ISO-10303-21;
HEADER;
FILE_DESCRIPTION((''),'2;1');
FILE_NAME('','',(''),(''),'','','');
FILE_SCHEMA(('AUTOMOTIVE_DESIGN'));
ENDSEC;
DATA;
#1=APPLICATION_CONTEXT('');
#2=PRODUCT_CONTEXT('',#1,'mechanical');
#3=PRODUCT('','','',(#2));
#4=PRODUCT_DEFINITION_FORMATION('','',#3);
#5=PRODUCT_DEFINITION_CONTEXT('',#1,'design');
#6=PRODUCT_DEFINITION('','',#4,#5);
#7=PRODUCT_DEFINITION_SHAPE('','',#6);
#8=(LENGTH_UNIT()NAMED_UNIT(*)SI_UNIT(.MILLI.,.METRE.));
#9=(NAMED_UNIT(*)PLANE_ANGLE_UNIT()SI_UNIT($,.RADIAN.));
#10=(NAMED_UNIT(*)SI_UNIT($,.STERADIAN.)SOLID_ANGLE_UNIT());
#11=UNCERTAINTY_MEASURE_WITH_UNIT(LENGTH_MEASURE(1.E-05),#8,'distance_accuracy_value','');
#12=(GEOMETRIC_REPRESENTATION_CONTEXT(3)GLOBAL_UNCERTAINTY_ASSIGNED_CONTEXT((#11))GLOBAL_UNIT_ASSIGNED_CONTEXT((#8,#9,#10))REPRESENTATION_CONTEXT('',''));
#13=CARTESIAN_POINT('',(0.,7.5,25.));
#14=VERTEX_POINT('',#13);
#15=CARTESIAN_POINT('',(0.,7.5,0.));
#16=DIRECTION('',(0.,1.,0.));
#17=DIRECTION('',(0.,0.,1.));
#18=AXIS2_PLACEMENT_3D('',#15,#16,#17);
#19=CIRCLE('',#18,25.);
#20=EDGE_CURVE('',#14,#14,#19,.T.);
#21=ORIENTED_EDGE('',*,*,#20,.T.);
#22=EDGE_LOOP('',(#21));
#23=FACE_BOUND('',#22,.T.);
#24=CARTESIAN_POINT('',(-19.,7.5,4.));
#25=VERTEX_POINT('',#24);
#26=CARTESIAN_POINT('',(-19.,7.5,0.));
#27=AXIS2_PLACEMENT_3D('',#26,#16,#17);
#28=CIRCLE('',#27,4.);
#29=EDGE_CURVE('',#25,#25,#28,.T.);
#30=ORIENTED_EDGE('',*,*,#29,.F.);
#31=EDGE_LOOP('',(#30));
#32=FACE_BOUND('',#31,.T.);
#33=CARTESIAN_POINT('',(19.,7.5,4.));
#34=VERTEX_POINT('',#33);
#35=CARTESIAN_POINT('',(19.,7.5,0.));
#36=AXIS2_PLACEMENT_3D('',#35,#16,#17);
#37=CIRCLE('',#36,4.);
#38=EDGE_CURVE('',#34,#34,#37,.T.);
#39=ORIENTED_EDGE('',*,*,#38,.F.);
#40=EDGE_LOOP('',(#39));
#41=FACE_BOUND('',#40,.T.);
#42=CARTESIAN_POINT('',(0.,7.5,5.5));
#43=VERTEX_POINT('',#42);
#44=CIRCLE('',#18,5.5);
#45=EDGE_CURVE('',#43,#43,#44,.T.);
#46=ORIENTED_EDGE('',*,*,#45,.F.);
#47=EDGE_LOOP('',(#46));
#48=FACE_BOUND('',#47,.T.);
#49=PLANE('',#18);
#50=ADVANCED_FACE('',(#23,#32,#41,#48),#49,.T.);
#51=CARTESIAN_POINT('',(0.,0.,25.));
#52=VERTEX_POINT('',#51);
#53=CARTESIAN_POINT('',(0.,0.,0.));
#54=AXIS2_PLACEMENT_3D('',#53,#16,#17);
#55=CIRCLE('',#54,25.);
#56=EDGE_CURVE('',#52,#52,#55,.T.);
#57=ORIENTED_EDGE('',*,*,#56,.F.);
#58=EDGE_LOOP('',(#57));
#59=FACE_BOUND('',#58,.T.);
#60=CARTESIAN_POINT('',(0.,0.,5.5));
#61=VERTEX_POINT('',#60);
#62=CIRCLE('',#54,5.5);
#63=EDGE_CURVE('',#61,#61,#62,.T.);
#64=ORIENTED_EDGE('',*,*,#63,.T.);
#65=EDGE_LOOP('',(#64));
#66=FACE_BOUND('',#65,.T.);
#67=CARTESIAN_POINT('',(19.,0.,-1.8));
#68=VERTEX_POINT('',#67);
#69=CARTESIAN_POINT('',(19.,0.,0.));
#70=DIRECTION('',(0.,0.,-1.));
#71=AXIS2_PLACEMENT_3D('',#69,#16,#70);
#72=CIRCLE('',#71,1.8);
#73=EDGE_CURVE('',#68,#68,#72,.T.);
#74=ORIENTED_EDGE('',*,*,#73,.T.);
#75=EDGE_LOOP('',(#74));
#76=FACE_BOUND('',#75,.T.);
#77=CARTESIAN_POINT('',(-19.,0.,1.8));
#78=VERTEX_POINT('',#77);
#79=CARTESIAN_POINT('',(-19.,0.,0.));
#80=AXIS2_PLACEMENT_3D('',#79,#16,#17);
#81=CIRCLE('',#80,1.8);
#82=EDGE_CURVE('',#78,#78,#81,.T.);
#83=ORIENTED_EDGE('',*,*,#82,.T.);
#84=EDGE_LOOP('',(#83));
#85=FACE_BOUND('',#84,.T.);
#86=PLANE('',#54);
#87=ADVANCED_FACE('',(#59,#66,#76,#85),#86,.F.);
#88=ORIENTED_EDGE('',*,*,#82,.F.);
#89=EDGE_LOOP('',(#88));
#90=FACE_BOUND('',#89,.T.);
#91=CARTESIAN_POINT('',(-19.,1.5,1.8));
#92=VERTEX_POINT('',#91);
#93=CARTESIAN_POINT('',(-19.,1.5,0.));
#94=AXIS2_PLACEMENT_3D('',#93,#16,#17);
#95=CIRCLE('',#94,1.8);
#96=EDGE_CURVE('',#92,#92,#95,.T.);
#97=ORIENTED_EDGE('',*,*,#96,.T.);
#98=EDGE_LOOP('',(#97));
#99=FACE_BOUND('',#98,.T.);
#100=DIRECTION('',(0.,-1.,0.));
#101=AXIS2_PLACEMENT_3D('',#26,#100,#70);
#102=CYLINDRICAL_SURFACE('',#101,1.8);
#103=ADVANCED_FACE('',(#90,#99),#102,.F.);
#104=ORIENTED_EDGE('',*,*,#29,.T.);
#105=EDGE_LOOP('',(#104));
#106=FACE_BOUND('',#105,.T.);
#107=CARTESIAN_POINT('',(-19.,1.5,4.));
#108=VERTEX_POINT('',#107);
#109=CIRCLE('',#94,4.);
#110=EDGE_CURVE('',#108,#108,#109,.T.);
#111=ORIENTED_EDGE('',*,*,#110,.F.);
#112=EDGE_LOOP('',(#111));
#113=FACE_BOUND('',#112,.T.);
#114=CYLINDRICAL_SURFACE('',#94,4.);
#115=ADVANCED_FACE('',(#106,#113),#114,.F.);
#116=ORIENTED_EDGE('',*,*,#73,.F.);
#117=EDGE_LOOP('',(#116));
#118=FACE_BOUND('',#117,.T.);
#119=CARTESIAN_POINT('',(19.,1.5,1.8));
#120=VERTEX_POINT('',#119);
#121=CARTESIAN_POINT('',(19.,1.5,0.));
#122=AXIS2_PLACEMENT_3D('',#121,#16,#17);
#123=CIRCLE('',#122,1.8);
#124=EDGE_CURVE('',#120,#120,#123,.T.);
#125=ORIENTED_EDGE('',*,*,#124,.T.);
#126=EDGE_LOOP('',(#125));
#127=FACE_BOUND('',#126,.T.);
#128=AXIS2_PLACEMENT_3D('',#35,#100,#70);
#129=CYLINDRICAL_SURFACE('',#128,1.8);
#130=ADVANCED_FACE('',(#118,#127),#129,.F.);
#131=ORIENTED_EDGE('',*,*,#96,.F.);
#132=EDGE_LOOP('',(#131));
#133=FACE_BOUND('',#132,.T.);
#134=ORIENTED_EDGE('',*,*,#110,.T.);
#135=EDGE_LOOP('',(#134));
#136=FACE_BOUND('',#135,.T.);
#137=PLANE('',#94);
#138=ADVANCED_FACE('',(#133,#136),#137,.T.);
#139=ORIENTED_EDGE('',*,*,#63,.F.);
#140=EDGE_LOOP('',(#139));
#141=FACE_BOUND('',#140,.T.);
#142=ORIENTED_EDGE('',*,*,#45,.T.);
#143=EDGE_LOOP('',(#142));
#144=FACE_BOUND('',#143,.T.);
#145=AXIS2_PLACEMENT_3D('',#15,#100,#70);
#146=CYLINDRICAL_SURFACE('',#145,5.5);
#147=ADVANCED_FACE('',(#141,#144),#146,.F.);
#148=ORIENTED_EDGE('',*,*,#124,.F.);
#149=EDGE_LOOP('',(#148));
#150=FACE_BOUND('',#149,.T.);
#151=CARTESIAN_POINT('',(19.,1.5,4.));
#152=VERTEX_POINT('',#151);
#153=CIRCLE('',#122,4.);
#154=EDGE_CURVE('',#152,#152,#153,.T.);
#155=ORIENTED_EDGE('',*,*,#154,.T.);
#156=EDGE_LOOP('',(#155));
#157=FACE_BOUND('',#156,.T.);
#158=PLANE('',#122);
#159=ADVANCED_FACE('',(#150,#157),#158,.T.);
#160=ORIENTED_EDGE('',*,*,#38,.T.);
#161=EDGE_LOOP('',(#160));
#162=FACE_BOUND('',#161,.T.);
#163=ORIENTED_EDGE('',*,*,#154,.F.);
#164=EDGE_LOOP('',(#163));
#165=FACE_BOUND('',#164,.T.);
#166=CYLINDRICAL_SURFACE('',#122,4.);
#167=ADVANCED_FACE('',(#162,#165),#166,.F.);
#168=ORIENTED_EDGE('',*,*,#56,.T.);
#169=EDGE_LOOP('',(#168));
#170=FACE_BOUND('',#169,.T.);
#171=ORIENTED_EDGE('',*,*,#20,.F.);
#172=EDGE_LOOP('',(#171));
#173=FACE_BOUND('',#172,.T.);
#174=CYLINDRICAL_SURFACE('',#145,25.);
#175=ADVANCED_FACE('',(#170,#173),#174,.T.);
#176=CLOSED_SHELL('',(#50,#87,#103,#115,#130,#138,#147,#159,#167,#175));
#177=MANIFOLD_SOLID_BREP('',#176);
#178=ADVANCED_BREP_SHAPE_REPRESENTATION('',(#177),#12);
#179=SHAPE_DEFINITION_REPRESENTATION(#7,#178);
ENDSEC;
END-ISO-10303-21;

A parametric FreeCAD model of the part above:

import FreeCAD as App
import Part
import Sketcher
from FreeCAD import Vector

doc = App.newDocument("Part")
body = doc.addObject("PartDesign::Body", "Body")

# Sketch on XZ plane
sketch1 = body.newObject("Sketcher::SketchObject", "Sketch")
sketch1.AttachmentSupport = (doc.getObject("XZ_Plane"), [""])
sketch1.MapMode = "FlatFace"
sketch1.addGeometry(Part.Circle(Vector(0, 0, 0), Vector(0, 0, 1), 25), False)
sketch1.addGeometry(Part.Circle(Vector(-19, 0, 0), Vector(0, 0, 1), 1.8), False)
sketch1.addGeometry(Part.Circle(Vector(0, 0, 0), Vector(0, 0, 1), 5.5), False)
sketch1.addGeometry(Part.Circle(Vector(19, 0, 0), Vector(0, 0, 1), 1.8), False)
sketch1.addConstraint(Sketcher.Constraint("Coincident", 0, 3, -1, 1))
sketch1.addConstraint(Sketcher.Constraint("Coincident", 2, 3, -1, 1))
sketch1.addConstraint(Sketcher.Constraint("Equal", 1, 3))
sketch1.addConstraint(Sketcher.Constraint("Symmetric", 1, 3, 3, 3, -1, 1))
sketch1.addConstraint(Sketcher.Constraint("PointOnObject", 1, 3, -1))
sketch1.addConstraint(Sketcher.Constraint("Diameter", 0, 50.0))
sketch1.addConstraint(Sketcher.Constraint("Diameter", 2, 11.0))
sketch1.addConstraint(Sketcher.Constraint("Diameter", 1, 3.6))
sketch1.addConstraint(Sketcher.Constraint("DistanceX", 1, 3, -1, 1, 19.0))
pad1 = body.newObject("PartDesign::Pad", "Pad")
pad1.Profile = sketch1
pad1.Length = 7.5
pad1.Reversed = True

# Sketch on XZ plane
sketch2 = body.newObject("Sketcher::SketchObject", "Sketch001")
sketch2.AttachmentSupport = (doc.getObject("XZ_Plane"), [""])
sketch2.MapMode = "FlatFace"
sketch2.AttachmentOffset = App.Placement(Vector(0, 0, -7.5), App.Rotation())
sketch2.addGeometry(Part.Circle(Vector(-19, 0, 0), Vector(0, 0, 1), 4), False)
sketch2.addGeometry(Part.Circle(Vector(19, 0, 0), Vector(0, 0, 1), 4), False)
sketch2.addConstraint(Sketcher.Constraint("Equal", 0, 1))
sketch2.addConstraint(Sketcher.Constraint("Symmetric", 0, 3, 1, 3, -1, 1))
sketch2.addConstraint(Sketcher.Constraint("PointOnObject", 0, 3, -1))
sketch2.addConstraint(Sketcher.Constraint("Diameter", 0, 8.0))
sketch2.addConstraint(Sketcher.Constraint("DistanceX", 0, 3, -1, 1, 19.0))
pocket1 = body.newObject("PartDesign::Pocket", "Pocket")
pocket1.Profile = sketch2
pocket1.Length = 6
pocket1.Reversed = True

doc.recompute()
